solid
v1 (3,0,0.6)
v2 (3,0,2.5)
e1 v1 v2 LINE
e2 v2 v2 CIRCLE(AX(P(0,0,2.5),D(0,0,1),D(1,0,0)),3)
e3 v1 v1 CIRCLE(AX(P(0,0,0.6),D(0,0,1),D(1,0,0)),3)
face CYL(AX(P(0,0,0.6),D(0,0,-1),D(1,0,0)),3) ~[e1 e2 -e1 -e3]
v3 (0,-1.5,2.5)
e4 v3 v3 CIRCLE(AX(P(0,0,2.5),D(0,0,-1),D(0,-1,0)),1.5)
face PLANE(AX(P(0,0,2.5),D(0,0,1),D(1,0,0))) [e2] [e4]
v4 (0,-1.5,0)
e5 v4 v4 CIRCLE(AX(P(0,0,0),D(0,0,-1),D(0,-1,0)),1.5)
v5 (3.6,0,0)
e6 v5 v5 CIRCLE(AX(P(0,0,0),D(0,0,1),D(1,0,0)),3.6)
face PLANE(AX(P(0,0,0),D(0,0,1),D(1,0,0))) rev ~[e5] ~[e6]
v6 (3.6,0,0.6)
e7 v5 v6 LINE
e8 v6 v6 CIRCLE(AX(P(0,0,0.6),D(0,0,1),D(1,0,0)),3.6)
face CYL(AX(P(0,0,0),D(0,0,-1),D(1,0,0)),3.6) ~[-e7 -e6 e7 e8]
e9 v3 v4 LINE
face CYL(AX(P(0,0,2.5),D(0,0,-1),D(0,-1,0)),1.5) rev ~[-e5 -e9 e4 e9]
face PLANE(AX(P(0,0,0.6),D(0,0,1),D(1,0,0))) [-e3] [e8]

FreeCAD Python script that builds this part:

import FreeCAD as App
import Part
import Sketcher
from FreeCAD import Vector

doc = App.newDocument("Part")
body = doc.addObject("PartDesign::Body", "Body")

# Sketch on XY plane
sketch1 = doc.addObject("Sketcher::SketchObject", "Sketch")
body.addObject(sketch1)
sketch1.AttachmentSupport = (doc.XY_Plane, [""])
sketch1.MapMode = "FlatFace"
sketch1.addGeometry(Part.Circle(Vector(0, 0, 0), Vector(0, 0, 1), 3.6), False)
sketch1.addConstraint([
    Sketcher.Constraint("Coincident", 0, 3, -1, 1),
    Sketcher.Constraint("Diameter", 0, 7.2),
])
pad1 = doc.addObject("PartDesign::Pad", "Pad")
body.addObject(pad1)
pad1.Profile = sketch1
pad1.Length = 0.6

# Sketch on XY plane
sketch2 = doc.addObject("Sketcher::SketchObject", "Sketch001")
body.addObject(sketch2)
sketch2.AttachmentSupport = (doc.XY_Plane, [""])
sketch2.MapMode = "FlatFace"
sketch2.AttachmentOffset = App.Placement(Vector(0, 0, 0.6), App.Rotation())
sketch2.addGeometry(Part.Circle(Vector(0, 0, 0), Vector(0, 0, 1), 3), False)
sketch2.addConstraint([
    Sketcher.Constraint("Coincident", 0, 3, -1, 1),
    Sketcher.Constraint("Diameter", 0, 6.0),
])
pad2 = doc.addObject("PartDesign::Pad", "Pad001")
body.addObject(pad2)
pad2.Profile = sketch2
pad2.Length = 1.9

# Sketch on XY plane
sketch3 = doc.addObject("Sketcher::SketchObject", "Sketch002")
body.addObject(sketch3)
sketch3.AttachmentSupport = (doc.XY_Plane, [""])
sketch3.MapMode = "FlatFace"
sketch3.AttachmentOffset = App.Placement(Vector(0, 0, 2.5), App.Rotation())
sketch3.addGeometry(Part.Circle(Vector(0, 0, 0), Vector(0, 0, 1), 1.5), False)
sketch3.addConstraint([
    Sketcher.Constraint("Coincident", 0, 3, -1, 1),
    Sketcher.Constraint("Diameter", 0, 3.0),
])
doc.recompute()
hole = doc.addObject("PartDesign::Hole", "Hole")
body.addObject(hole)
hole.Profile = sketch3
hole.ThreadType = "None"
hole.Diameter = 3
hole.DepthType = "Dimension"
hole.Depth = 15
hole.DrillPoint = "Flat"

doc.recompute()
